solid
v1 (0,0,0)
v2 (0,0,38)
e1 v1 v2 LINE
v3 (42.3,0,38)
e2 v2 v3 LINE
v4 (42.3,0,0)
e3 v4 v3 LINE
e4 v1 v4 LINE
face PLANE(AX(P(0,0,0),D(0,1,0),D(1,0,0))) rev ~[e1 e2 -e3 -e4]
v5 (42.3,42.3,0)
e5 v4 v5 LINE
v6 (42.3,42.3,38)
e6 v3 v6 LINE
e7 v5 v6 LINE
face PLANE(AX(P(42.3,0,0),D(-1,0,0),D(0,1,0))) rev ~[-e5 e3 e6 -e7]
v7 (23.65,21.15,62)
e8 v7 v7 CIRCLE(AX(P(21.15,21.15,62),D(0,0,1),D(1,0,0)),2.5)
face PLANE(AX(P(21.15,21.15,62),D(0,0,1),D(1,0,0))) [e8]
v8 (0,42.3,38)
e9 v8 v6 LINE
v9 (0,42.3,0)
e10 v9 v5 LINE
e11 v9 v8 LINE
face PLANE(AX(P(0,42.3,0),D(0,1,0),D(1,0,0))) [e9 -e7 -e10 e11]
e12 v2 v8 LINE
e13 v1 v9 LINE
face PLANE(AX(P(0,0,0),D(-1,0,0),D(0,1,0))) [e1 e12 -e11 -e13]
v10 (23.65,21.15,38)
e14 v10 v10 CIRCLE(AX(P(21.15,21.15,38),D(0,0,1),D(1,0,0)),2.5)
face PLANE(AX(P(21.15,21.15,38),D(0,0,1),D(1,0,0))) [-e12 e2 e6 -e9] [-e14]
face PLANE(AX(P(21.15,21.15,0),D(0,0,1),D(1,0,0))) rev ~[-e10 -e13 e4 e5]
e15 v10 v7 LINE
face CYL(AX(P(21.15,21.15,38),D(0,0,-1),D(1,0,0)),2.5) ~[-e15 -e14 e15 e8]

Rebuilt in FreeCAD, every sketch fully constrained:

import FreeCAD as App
import Part
import Sketcher


def add_polygon(sketch, points):
    """Adds a closed chain of lines whose ends are joined by coincident constraints."""
    first, n = sketch.GeometryCount, len(points)
    for a, b in zip(points, points[1:] + points[:1]):
        sketch.addGeometry(Part.LineSegment(App.Vector(*a, 0), App.Vector(*b, 0)), False)
    for i in range(n):
        sketch.addConstraint(Sketcher.Constraint("Coincident", first + i, 2, first + (i + 1) % n, 1))

doc = App.newDocument("Part")
body = doc.addObject("PartDesign::Body", "Body")

# Sketch on XY plane
sketch1 = doc.addObject("Sketcher::SketchObject", "Sketch")
body.addObject(sketch1)
sketch1.AttachmentSupport = (doc.XY_Plane, [""])
sketch1.MapMode = "FlatFace"
sketch1.AttachmentOffset = App.Placement(App.Vector(0, 0, 38), App.Rotation())
sketch1.addGeometry(Part.Circle(App.Vector(21.1, 21.1, 0), App.Vector(0, 0, 1), 2.5), False)
sketch1.addConstraint(Sketcher.Constraint("Diameter", 0, 5.0))
sketch1.addConstraint(Sketcher.Constraint("DistanceX", -1, 1, 0, 3, 21.15))
sketch1.addConstraint(Sketcher.Constraint("DistanceY", -1, 1, 0, 3, 21.15))
pad1 = doc.addObject("PartDesign::Pad", "Pad")
body.addObject(pad1)
pad1.Profile = sketch1
pad1.Length = 24
body2 = doc.addObject("PartDesign::Body", "Body001")

# Sketch on XY plane
sketch2 = doc.addObject("Sketcher::SketchObject", "Sketch001")
body2.addObject(sketch2)
sketch2.AttachmentSupport = (doc.getObject("XY_Plane001"), [""])
sketch2.MapMode = "FlatFace"
add_polygon(sketch2, [(0, 42), (0, 0), (42, 0), (42, 42)])  # lines 0-3
sketch2.addConstraint(Sketcher.Constraint("Vertical", 0))
sketch2.addConstraint(Sketcher.Constraint("Horizontal", 1))
sketch2.addConstraint(Sketcher.Constraint("Vertical", 2))
sketch2.addConstraint(Sketcher.Constraint("Horizontal", 3))
sketch2.addConstraint(Sketcher.Constraint("Coincident", 0, 2, -1, 1))
sketch2.addConstraint(Sketcher.Constraint("Equal", 3, 0))
sketch2.addConstraint(Sketcher.Constraint("DistanceX", 1, 1, 1, 2, 42.3))
pad2 = doc.addObject("PartDesign::Pad", "Pad001")
body2.addObject(pad2)
pad2.Profile = sketch2
pad2.Length = 38
doc.recompute()

boolean = doc.addObject("PartDesign::Boolean", "Boolean")
body2.addObject(boolean)
boolean.Type = "Fuse"
boolean.addObjects([body])

doc.recompute()
